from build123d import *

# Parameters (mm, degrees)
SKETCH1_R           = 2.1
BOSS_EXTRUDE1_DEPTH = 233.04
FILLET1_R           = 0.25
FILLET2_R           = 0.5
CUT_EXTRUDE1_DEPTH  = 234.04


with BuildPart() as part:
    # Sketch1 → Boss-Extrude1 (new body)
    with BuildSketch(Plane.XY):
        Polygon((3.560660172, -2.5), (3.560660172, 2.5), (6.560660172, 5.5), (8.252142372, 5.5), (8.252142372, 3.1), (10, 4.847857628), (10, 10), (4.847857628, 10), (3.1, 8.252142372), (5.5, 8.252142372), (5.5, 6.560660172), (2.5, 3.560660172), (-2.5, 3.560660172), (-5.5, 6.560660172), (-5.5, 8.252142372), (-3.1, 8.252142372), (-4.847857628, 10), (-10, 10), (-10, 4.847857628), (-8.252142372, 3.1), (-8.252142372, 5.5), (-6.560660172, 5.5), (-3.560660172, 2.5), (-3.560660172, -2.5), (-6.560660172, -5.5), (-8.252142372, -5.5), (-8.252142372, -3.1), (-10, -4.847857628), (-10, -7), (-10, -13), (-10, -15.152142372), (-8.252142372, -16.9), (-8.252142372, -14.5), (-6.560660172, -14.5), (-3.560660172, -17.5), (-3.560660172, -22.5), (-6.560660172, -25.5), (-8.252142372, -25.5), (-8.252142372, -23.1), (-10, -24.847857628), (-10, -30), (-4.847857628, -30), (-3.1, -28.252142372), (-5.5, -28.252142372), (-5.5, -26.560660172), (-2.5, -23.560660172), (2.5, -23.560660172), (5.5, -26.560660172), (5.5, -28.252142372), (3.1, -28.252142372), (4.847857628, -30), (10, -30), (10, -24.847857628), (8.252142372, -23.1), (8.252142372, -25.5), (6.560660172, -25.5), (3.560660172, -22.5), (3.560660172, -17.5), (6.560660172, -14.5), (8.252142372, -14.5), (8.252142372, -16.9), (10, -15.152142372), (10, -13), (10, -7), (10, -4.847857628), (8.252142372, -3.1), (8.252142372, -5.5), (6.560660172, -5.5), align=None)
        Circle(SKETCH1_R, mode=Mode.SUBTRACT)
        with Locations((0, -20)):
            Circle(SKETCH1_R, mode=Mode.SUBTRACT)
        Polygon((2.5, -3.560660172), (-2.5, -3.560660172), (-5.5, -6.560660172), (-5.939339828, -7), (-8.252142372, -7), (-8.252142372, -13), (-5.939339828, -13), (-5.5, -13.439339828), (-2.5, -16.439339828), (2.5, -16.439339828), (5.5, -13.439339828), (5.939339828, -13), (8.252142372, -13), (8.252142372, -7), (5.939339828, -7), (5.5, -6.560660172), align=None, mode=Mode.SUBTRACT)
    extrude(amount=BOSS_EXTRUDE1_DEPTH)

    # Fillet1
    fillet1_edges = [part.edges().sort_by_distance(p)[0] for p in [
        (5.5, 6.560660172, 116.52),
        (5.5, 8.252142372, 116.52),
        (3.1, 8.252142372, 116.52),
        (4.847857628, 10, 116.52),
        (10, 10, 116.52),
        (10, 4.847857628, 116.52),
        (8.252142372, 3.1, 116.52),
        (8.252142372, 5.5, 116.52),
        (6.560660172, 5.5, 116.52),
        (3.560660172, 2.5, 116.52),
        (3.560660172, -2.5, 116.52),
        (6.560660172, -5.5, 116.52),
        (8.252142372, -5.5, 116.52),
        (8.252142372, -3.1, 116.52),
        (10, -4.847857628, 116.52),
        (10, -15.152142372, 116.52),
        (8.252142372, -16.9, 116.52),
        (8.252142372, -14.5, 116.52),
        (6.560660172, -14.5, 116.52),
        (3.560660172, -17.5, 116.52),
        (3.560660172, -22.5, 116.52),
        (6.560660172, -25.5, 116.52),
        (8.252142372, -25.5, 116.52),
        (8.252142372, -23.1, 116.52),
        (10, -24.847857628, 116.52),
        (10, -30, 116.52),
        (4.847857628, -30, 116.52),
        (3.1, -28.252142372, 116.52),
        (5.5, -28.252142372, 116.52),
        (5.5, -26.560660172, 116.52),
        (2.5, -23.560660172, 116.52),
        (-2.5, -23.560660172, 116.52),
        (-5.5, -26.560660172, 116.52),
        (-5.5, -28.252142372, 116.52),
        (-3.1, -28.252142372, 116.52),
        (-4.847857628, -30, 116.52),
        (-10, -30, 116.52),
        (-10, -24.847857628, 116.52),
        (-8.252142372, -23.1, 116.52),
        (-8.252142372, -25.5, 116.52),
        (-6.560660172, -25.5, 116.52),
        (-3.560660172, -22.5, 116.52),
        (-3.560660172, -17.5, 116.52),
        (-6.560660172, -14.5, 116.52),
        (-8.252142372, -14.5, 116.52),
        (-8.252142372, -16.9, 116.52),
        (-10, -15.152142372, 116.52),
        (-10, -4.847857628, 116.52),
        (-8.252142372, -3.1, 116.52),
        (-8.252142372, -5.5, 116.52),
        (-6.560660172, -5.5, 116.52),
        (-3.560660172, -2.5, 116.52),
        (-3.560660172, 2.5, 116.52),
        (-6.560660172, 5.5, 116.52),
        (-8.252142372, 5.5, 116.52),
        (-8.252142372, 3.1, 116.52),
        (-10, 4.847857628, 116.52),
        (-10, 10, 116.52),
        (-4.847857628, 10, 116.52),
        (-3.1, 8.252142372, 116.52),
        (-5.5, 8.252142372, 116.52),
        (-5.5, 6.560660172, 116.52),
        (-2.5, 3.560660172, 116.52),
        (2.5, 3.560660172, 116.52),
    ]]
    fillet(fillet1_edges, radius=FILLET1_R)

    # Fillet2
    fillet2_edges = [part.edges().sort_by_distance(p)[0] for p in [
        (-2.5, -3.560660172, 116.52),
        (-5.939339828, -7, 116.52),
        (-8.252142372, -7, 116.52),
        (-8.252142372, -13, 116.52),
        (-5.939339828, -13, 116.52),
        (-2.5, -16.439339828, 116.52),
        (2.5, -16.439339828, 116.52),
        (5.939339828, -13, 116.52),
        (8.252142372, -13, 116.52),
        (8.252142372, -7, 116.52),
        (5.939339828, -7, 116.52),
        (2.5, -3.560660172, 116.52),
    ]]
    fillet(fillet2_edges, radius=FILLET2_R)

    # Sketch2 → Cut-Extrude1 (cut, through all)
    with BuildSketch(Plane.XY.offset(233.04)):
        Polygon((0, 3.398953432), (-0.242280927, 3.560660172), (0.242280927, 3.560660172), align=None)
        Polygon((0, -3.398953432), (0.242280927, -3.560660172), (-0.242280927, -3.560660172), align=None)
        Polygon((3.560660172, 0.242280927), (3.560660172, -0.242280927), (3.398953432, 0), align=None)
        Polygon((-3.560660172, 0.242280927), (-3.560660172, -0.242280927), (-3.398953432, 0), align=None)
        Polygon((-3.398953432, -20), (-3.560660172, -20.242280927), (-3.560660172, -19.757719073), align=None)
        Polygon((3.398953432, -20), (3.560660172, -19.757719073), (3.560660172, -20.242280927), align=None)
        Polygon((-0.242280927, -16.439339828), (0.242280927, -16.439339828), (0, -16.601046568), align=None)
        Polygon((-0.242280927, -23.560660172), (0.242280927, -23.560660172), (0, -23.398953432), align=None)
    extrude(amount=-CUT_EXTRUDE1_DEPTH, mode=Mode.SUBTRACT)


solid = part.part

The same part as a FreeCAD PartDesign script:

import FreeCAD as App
import Part
import Sketcher

V = App.Vector


def edges_at(feature, points):
    """Names of the edges that pass closest to the given points."""
    edges = feature.Shape.Edges
    near = lambda p: min(range(len(edges)), key=lambda i: edges[i].distToShape(Part.Vertex(*p))[0])
    return sorted({f"Edge{near(p) + 1}" for p in points})

doc = App.newDocument("Part")
body = doc.addObject("PartDesign::Body", "Body")

# Sketch on XY plane
sketch1 = doc.addObject("Sketcher::SketchObject", "Sketch")
body.addObject(sketch1)
sketch1.AttachmentSupport = (doc.XY_Plane, [""])
sketch1.MapMode = "FlatFace"
sketch1.addGeometry(Part.LineSegment(V(3.6, -2.5, 0), V(3.6, 2.5, 0)), False)
sketch1.addGeometry(Part.LineSegment(V(3.6, 2.5, 0), V(6.6, 5.5, 0)), False)
sketch1.addGeometry(Part.LineSegment(V(6.6, 5.5, 0), V(8.3, 5.5, 0)), False)
sketch1.addGeometry(Part.LineSegment(V(8.3, 5.5, 0), V(8.3, 3.1, 0)), False)
sketch1.addGeometry(Part.LineSegment(V(8.3, 3.1, 0), V(10, 4.8, 0)), False)
sketch1.addGeometry(Part.LineSegment(V(10, 4.8, 0), V(10, 10, 0)), False)
sketch1.addGeometry(Part.LineSegment(V(10, 10, 0), V(4.8, 10, 0)), False)
sketch1.addGeometry(Part.LineSegment(V(4.8, 10, 0), V(3.1, 8.3, 0)), False)
sketch1.addGeometry(Part.LineSegment(V(3.1, 8.3, 0), V(5.5, 8.3, 0)), False)
sketch1.addGeometry(Part.LineSegment(V(5.5, 8.3, 0), V(5.5, 6.6, 0)), False)
sketch1.addGeometry(Part.LineSegment(V(5.5, 6.6, 0), V(2.5, 3.6, 0)), False)
sketch1.addGeometry(Part.LineSegment(V(2.5, 3.6, 0), V(-2.5, 3.6, 0)), False)
sketch1.addGeometry(Part.LineSegment(V(-2.5, 3.6, 0), V(-5.5, 6.6, 0)), False)
sketch1.addGeometry(Part.LineSegment(V(-5.5, 6.6, 0), V(-5.5, 8.3, 0)), False)
sketch1.addGeometry(Part.LineSegment(V(-5.5, 8.3, 0), V(-3.1, 8.3, 0)), False)
sketch1.addGeometry(Part.LineSegment(V(-3.1, 8.3, 0), V(-4.8, 10, 0)), False)
sketch1.addGeometry(Part.LineSegment(V(-4.8, 10, 0), V(-10, 10, 0)), False)
sketch1.addGeometry(Part.LineSegment(V(-10, 10, 0), V(-10, 4.8, 0)), False)
sketch1.addGeometry(Part.LineSegment(V(-10, 4.8, 0), V(-8.3, 3.1, 0)), False)
sketch1.addGeometry(Part.LineSegment(V(-8.3, 3.1, 0), V(-8.3, 5.5, 0)), False)
sketch1.addGeometry(Part.LineSegment(V(-8.3, 5.5, 0), V(-6.6, 5.5, 0)), False)
sketch1.addGeometry(Part.LineSegment(V(-6.6, 5.5, 0), V(-3.6, 2.5, 0)), False)
sketch1.addGeometry(Part.LineSegment(V(-3.6, 2.5, 0), V(-3.6, -2.5, 0)), False)
sketch1.addGeometry(Part.LineSegment(V(-3.6, -2.5, 0), V(-6.6, -5.5, 0)), False)
sketch1.addGeometry(Part.LineSegment(V(-6.6, -5.5, 0), V(-8.3, -5.5, 0)), False)
sketch1.addGeometry(Part.LineSegment(V(-8.3, -5.5, 0), V(-8.3, -3.1, 0)), False)
sketch1.addGeometry(Part.LineSegment(V(-8.3, -3.1, 0), V(-10, -4.8, 0)), False)
sketch1.addGeometry(Part.LineSegment(V(-10, -4.8, 0), V(-10, -15.2, 0)), False)
sketch1.addGeometry(Part.LineSegment(V(-10, -15.2, 0), V(-8.3, -16.9, 0)), False)
sketch1.addGeometry(Part.LineSegment(V(-8.3, -16.9, 0), V(-8.3, -14.5, 0)), False)
sketch1.addGeometry(Part.LineSegment(V(-8.3, -14.5, 0), V(-6.6, -14.5, 0)), False)
sketch1.addGeometry(Part.LineSegment(V(-6.6, -14.5, 0), V(-3.6, -17.5, 0)), False)
sketch1.addGeometry(Part.LineSegment(V(-3.6, -17.5, 0), V(-3.6, -22.5, 0)), False)
sketch1.addGeometry(Part.LineSegment(V(-3.6, -22.5, 0), V(-6.6, -25.5, 0)), False)
sketch1.addGeometry(Part.LineSegment(V(-6.6, -25.5, 0), V(-8.3, -25.5, 0)), False)
sketch1.addGeometry(Part.LineSegment(V(-8.3, -25.5, 0), V(-8.3, -23.1, 0)), False)
sketch1.addGeometry(Part.LineSegment(V(-8.3, -23.1, 0), V(-10, -24.8, 0)), False)
sketch1.addGeometry(Part.LineSegment(V(-10, -24.8, 0), V(-10, -30, 0)), False)
sketch1.addGeometry(Part.LineSegment(V(-10, -30, 0), V(-4.8, -30, 0)), False)
sketch1.addGeometry(Part.LineSegment(V(-4.8, -30, 0), V(-3.1, -28.3, 0)), False)
sketch1.addGeometry(Part.LineSegment(V(-3.1, -28.3, 0), V(-5.5, -28.3, 0)), False)
sketch1.addGeometry(Part.LineSegment(V(-5.5, -28.3, 0), V(-5.5, -26.6, 0)), False)
sketch1.addGeometry(Part.LineSegment(V(-5.5, -26.6, 0), V(-2.5, -23.6, 0)), False)
sketch1.addGeometry(Part.LineSegment(V(-2.5, -23.6, 0), V(2.5, -23.6, 0)), False)
sketch1.addGeometry(Part.LineSegment(V(2.5, -23.6, 0), V(5.5, -26.6, 0)), False)
sketch1.addGeometry(Part.LineSegment(V(5.5, -26.6, 0), V(5.5, -28.3, 0)), False)
sketch1.addGeometry(Part.LineSegment(V(5.5, -28.3, 0), V(3.1, -28.3, 0)), False)
sketch1.addGeometry(Part.LineSegment(V(3.1, -28.3, 0), V(4.8, -30, 0)), False)
sketch1.addGeometry(Part.LineSegment(V(4.8, -30, 0), V(10, -30, 0)), False)
sketch1.addGeometry(Part.LineSegment(V(10, -30, 0), V(10, -24.8, 0)), False)
sketch1.addGeometry(Part.LineSegment(V(10, -24.8, 0), V(8.3, -23.1, 0)), False)
sketch1.addGeometry(Part.LineSegment(V(8.3, -23.1, 0), V(8.3, -25.5, 0)), False)
sketch1.addGeometry(Part.LineSegment(V(8.3, -25.5, 0), V(6.6, -25.5, 0)), False)
sketch1.addGeometry(Part.LineSegment(V(6.6, -25.5, 0), V(3.6, -22.5, 0)), False)
sketch1.addGeometry(Part.LineSegment(V(3.6, -22.5, 0), V(3.6, -17.5, 0)), False)
sketch1.addGeometry(Part.LineSegment(V(3.6, -17.5, 0), V(6.6, -14.5, 0)), False)
sketch1.addGeometry(Part.LineSegment(V(6.6, -14.5, 0), V(8.3, -14.5, 0)), False)
sketch1.addGeometry(Part.LineSegment(V(8.3, -14.5, 0), V(8.3, -16.9, 0)), False)
sketch1.addGeometry(Part.LineSegment(V(8.3, -16.9, 0), V(10, -15.2, 0)), False)
sketch1.addGeometry(Part.LineSegment(V(10, -15.2, 0), V(10, -4.8, 0)), False)
sketch1.addGeometry(Part.LineSegment(V(10, -4.8, 0), V(8.3, -3.1, 0)), False)
sketch1.addGeometry(Part.LineSegment(V(8.3, -3.1, 0), V(8.3, -5.5, 0)), False)
sketch1.addGeometry(Part.LineSegment(V(8.3, -5.5, 0), V(6.6, -5.5, 0)), False)
sketch1.addGeometry(Part.LineSegment(V(6.6, -5.5, 0), V(3.6, -2.5, 0)), False)
sketch1.addGeometry(Part.Circle(V(0, -20, 0), V(0, 0, 1), 2.1), False)
sketch1.addGeometry(Part.LineSegment(V(-2.5, -3.6, 0), V(2.5, -3.6, 0)), False)
sketch1.addGeometry(Part.LineSegment(V(2.5, -3.6, 0), V(5.9, -7, 0)), False)
sketch1.addGeometry(Part.LineSegment(V(5.9, -7, 0), V(8.3, -7, 0)), False)
sketch1.addGeometry(Part.LineSegment(V(8.3, -7, 0), V(8.3, -13, 0)), False)
sketch1.addGeometry(Part.LineSegment(V(8.3, -13, 0), V(5.9, -13, 0)), False)
sketch1.addGeometry(Part.LineSegment(V(5.9, -13, 0), V(2.5, -16.4, 0)), False)
sketch1.addGeometry(Part.LineSegment(V(2.5, -16.4, 0), V(-2.5, -16.4, 0)), False)
sketch1.addGeometry(Part.LineSegment(V(-2.5, -16.4, 0), V(-5.9, -13, 0)), False)
sketch1.addGeometry(Part.LineSegment(V(-5.9, -13, 0), V(-8.3, -13, 0)), False)
sketch1.addGeometry(Part.LineSegment(V(-8.3, -13, 0), V(-8.3, -7, 0)), False)
sketch1.addGeometry(Part.LineSegment(V(-8.3, -7, 0), V(-5.9, -7, 0)), False)
sketch1.addGeometry(Part.LineSegment(V(-5.9, -7, 0), V(-2.5, -3.6, 0)), False)
sketch1.addGeometry(Part.Circle(V(0, 0, 0), V(0, 0, 1), 2.1), False)
sketch1.addConstraint(Sketcher.Constraint("Coincident", 0, 2, 1, 1))
sketch1.addConstraint(Sketcher.Constraint("Coincident", 1, 2, 2, 1))
sketch1.addConstraint(Sketcher.Constraint("Coincident", 2, 2, 3, 1))
sketch1.addConstraint(Sketcher.Constraint("Coincident", 3, 2, 4, 1))
sketch1.addConstraint(Sketcher.Constraint("Coincident", 4, 2, 5, 1))
sketch1.addConstraint(Sketcher.Constraint("Coincident", 5, 2, 6, 1))
sketch1.addConstraint(Sketcher.Constraint("Coincident", 6, 2, 7, 1))
sketch1.addConstraint(Sketcher.Constraint("Coincident", 7, 2, 8, 1))
sketch1.addConstraint(Sketcher.Constraint("Coincident", 8, 2, 9, 1))
sketch1.addConstraint(Sketcher.Constraint("Coincident", 9, 2, 10, 1))
sketch1.addConstraint(Sketcher.Constraint("Coincident", 10, 2, 11, 1))
sketch1.addConstraint(Sketcher.Constraint("Coincident", 11, 2, 12, 1))
sketch1.addConstraint(Sketcher.Constraint("Coincident", 12, 2, 13, 1))
sketch1.addConstraint(Sketcher.Constraint("Coincident", 13, 2, 14, 1))
sketch1.addConstraint(Sketcher.Constraint("Coincident", 14, 2, 15, 1))
sketch1.addConstraint(Sketcher.Constraint("Coincident", 15, 2, 16, 1))
sketch1.addConstraint(Sketcher.Constraint("Coincident", 16, 2, 17, 1))
sketch1.addConstraint(Sketcher.Constraint("Coincident", 17, 2, 18, 1))
sketch1.addConstraint(Sketcher.Constraint("Coincident", 18, 2, 19, 1))
sketch1.addConstraint(Sketcher.Constraint("Coincident", 19, 2, 20, 1))
sketch1.addConstraint(Sketcher.Constraint("Coincident", 20, 2, 21, 1))
sketch1.addConstraint(Sketcher.Constraint("Coincident", 21, 2, 22, 1))
sketch1.addConstraint(Sketcher.Constraint("Coincident", 22, 2, 23, 1))
sketch1.addConstraint(Sketcher.Constraint("Coincident", 23, 2, 24, 1))
sketch1.addConstraint(Sketcher.Constraint("Coincident", 24, 2, 25, 1))
sketch1.addConstraint(Sketcher.Constraint("Coincident", 25, 2, 26, 1))
sketch1.addConstraint(Sketcher.Constraint("Coincident", 26, 2, 27, 1))
sketch1.addConstraint(Sketcher.Constraint("Coincident", 27, 2, 28, 1))
sketch1.addConstraint(Sketcher.Constraint("Coincident", 28, 2, 29, 1))
sketch1.addConstraint(Sketcher.Constraint("Coincident", 29, 2, 30, 1))
sketch1.addConstraint(Sketcher.Constraint("Coincident", 30, 2, 31, 1))
sketch1.addConstraint(Sketcher.Constraint("Coincident", 31, 2, 32, 1))
sketch1.addConstraint(Sketcher.Constraint("Coincident", 32, 2, 33, 1))
sketch1.addConstraint(Sketcher.Constraint("Coincident", 33, 2, 34, 1))
sketch1.addConstraint(Sketcher.Constraint("Coincident", 34, 2, 35, 1))
sketch1.addConstraint(Sketcher.Constraint("Coincident", 35, 2, 36, 1))
sketch1.addConstraint(Sketcher.Constraint("Coincident", 36, 2, 37, 1))
sketch1.addConstraint(Sketcher.Constraint("Coincident", 37, 2, 38, 1))
sketch1.addConstraint(Sketcher.Constraint("Coincident", 38, 2, 39, 1))
sketch1.addConstraint(Sketcher.Constraint("Coincident", 39, 2, 40, 1))
sketch1.addConstraint(Sketcher.Constraint("Coincident", 40, 2, 41, 1))
sketch1.addConstraint(Sketcher.Constraint("Coincident", 41, 2, 42, 1))
sketch1.addConstraint(Sketcher.Constraint("Coincident", 42, 2, 43, 1))
sketch1.addConstraint(Sketcher.Constraint("Coincident", 43, 2, 44, 1))
sketch1.addConstraint(Sketcher.Constraint("Coincident", 44, 2, 45, 1))
sketch1.addConstraint(Sketcher.Constraint("Coincident", 45, 2, 46, 1))
sketch1.addConstraint(Sketcher.Constraint("Coincident", 46, 2, 47, 1))
sketch1.addConstraint(Sketcher.Constraint("Coincident", 47, 2, 48, 1))
sketch1.addConstraint(Sketcher.Constraint("Coincident", 48, 2, 49, 1))
sketch1.addConstraint(Sketcher.Constraint("Coincident", 49, 2, 50, 1))
sketch1.addConstraint(Sketcher.Constraint("Coincident", 50, 2, 51, 1))
sketch1.addConstraint(Sketcher.Constraint("Coincident", 51, 2, 52, 1))
sketch1.addConstraint(Sketcher.Constraint("Coincident", 52, 2, 53, 1))
sketch1.addConstraint(Sketcher.Constraint("Coincident", 53, 2, 54, 1))
sketch1.addConstraint(Sketcher.Constraint("Coincident", 54, 2, 55, 1))
sketch1.addConstraint(Sketcher.Constraint("Coincident", 55, 2, 56, 1))
sketch1.addConstraint(Sketcher.Constraint("Coincident", 56, 2, 57, 1))
sketch1.addConstraint(Sketcher.Constraint("Coincident", 57, 2, 58, 1))
sketch1.addConstraint(Sketcher.Constraint("Coincident", 58, 2, 59, 1))
sketch1.addConstraint(Sketcher.Constraint("Coincident", 59, 2, 60, 1))
sketch1.addConstraint(Sketcher.Constraint("Coincident", 60, 2, 61, 1))
sketch1.addConstraint(Sketcher.Constraint("Coincident", 61, 2, 62, 1))
sketch1.addConstraint(Sketcher.Constraint("Coincident", 62, 2, 63, 1))
sketch1.addConstraint(Sketcher.Constraint("Coincident", 63, 2, 0, 1))
sketch1.addConstraint(Sketcher.Constraint("Coincident", 65, 2, 66, 1))
sketch1.addConstraint(Sketcher.Constraint("Coincident", 66, 2, 67, 1))
sketch1.addConstraint(Sketcher.Constraint("Coincident", 67, 2, 68, 1))
sketch1.addConstraint(Sketcher.Constraint("Coincident", 68, 2, 69, 1))
sketch1.addConstraint(Sketcher.Constraint("Coincident", 69, 2, 70, 1))
sketch1.addConstraint(Sketcher.Constraint("Coincident", 70, 2, 71, 1))
sketch1.addConstraint(Sketcher.Constraint("Coincident", 71, 2, 72, 1))
sketch1.addConstraint(Sketcher.Constraint("Coincident", 72, 2, 73, 1))
sketch1.addConstraint(Sketcher.Constraint("Coincident", 73, 2, 74, 1))
sketch1.addConstraint(Sketcher.Constraint("Coincident", 74, 2, 75, 1))
sketch1.addConstraint(Sketcher.Constraint("Coincident", 75, 2, 76, 1))
sketch1.addConstraint(Sketcher.Constraint("Coincident", 76, 2, 65, 1))
sketch1.addConstraint(Sketcher.Constraint("Vertical", 0))
sketch1.addConstraint(Sketcher.Constraint("Horizontal", 2))
sketch1.addConstraint(Sketcher.Constraint("Vertical", 3))
sketch1.addConstraint(Sketcher.Constraint("Vertical", 5))
sketch1.addConstraint(Sketcher.Constraint("Horizontal", 6))
sketch1.addConstraint(Sketcher.Constraint("Horizontal", 8))
sketch1.addConstraint(Sketcher.Constraint("Vertical", 9))
sketch1.addConstraint(Sketcher.Constraint("Horizontal", 11))
sketch1.addConstraint(Sketcher.Constraint("Vertical", 13))
sketch1.addConstraint(Sketcher.Constraint("Horizontal", 14))
sketch1.addConstraint(Sketcher.Constraint("Horizontal", 16))
sketch1.addConstraint(Sketcher.Constraint("Vertical", 17))
sketch1.addConstraint(Sketcher.Constraint("Vertical", 19))
sketch1.addConstraint(Sketcher.Constraint("Horizontal", 20))
sketch1.addConstraint(Sketcher.Constraint("Vertical", 22))
sketch1.addConstraint(Sketcher.Constraint("Horizontal", 24))
sketch1.addConstraint(Sketcher.Constraint("Vertical", 25))
sketch1.addConstraint(Sketcher.Constraint("Vertical", 27))
sketch1.addConstraint(Sketcher.Constraint("Vertical", 29))
sketch1.addConstraint(Sketcher.Constraint("Horizontal", 30))
sketch1.addConstraint(Sketcher.Constraint("Vertical", 32))
sketch1.addConstraint(Sketcher.Constraint("Horizontal", 34))
sketch1.addConstraint(Sketcher.Constraint("Vertical", 35))
sketch1.addConstraint(Sketcher.Constraint("Vertical", 37))
sketch1.addConstraint(Sketcher.Constraint("Horizontal", 38))
sketch1.addConstraint(Sketcher.Constraint("Horizontal", 40))
sketch1.addConstraint(Sketcher.Constraint("Vertical", 41))
sketch1.addConstraint(Sketcher.Constraint("Horizontal", 43))
sketch1.addConstraint(Sketcher.Constraint("Vertical", 45))
sketch1.addConstraint(Sketcher.Constraint("Horizontal", 46))
sketch1.addConstraint(Sketcher.Constraint("Horizontal", 48))
sketch1.addConstraint(Sketcher.Constraint("Vertical", 49))
sketch1.addConstraint(Sketcher.Constraint("Vertical", 51))
sketch1.addConstraint(Sketcher.Constraint("Horizontal", 52))
sketch1.addConstraint(Sketcher.Constraint("Vertical", 54))
sketch1.addConstraint(Sketcher.Constraint("Horizontal", 56))
sketch1.addConstraint(Sketcher.Constraint("Vertical", 57))
sketch1.addConstraint(Sketcher.Constraint("Vertical", 59))
sketch1.addConstraint(Sketcher.Constraint("Vertical", 61))
sketch1.addConstraint(Sketcher.Constraint("Horizontal", 62))
sketch1.addConstraint(Sketcher.Constraint("Horizontal", 65))
sketch1.addConstraint(Sketcher.Constraint("Horizontal", 67))
sketch1.addConstraint(Sketcher.Constraint("Vertical", 68))
sketch1.addConstraint(Sketcher.Constraint("Horizontal", 69))
sketch1.addConstraint(Sketcher.Constraint("Horizontal", 71))
sketch1.addConstraint(Sketcher.Constraint("Horizontal", 73))
sketch1.addConstraint(Sketcher.Constraint("Vertical", 74))
sketch1.addConstraint(Sketcher.Constraint("Horizontal", 75))
sketch1.addConstraint(Sketcher.Constraint("Coincident", 77, 3, -1, 1))
sketch1.addConstraint(Sketcher.Constraint("Equal", 64, 77))
sketch1.addConstraint(Sketcher.Constraint("Symmetric", 0, 2, 22, 2, -1, 1))
sketch1.addConstraint(Sketcher.Constraint("Symmetric", 1, 2, 23, 2, -1, 1))
sketch1.addConstraint(Sketcher.Constraint("Symmetric", 3, 2, 25, 2, -1, 1))
sketch1.addConstraint(Sketcher.Constraint("Symmetric", 4, 2, 26, 2, -1, 1))
sketch1.addConstraint(Sketcher.Constraint("Symmetric", 17, 2, 59, 2, -1, 1))
sketch1.addConstraint(Sketcher.Constraint("Symmetric", 18, 2, 60, 2, -1, 1))
sketch1.addConstraint(Sketcher.Constraint("Symmetric", 20, 2, 62, 2, -1, 1))
sketch1.addConstraint(Sketcher.Constraint("Symmetric", 11, 2, 65, 2, -1, 1))
sketch1.addConstraint(Sketcher.Constraint("Symmetric", 9, 2, 12, 2, -2))
sketch1.addConstraint(Sketcher.Constraint("Symmetric", 7, 2, 14, 2, -2))
sketch1.addConstraint(Sketcher.Constraint("Symmetric", 6, 2, 15, 2, -2))
sketch1.addConstraint(Sketcher.Constraint("Symmetric", 4, 2, 17, 2, -2))
sketch1.addConstraint(Sketcher.Constraint("Symmetric", 3, 2, 18, 2, -2))
sketch1.addConstraint(Sketcher.Constraint("Symmetric", 1, 2, 20, 2, -2))
sketch1.addConstraint(Sketcher.Constraint("Symmetric", 41, 2, 44, 2, -2))
sketch1.addConstraint(Sketcher.Constraint("Symmetric", 39, 2, 46, 2, -2))
sketch1.addConstraint(Sketcher.Constraint("Symmetric", 38, 2, 47, 2, -2))
sketch1.addConstraint(Sketcher.Constraint("Symmetric", 36, 2, 49, 2, -2))
sketch1.addConstraint(Sketcher.Constraint("Symmetric", 35, 2, 50, 2, -2))
sketch1.addConstraint(Sketcher.Constraint("Symmetric", 33, 2, 52, 2, -2))
sketch1.addConstraint(Sketcher.Constraint("Symmetric", 32, 2, 53, 2, -2))
sketch1.addConstraint(Sketcher.Constraint("Symmetric", 30, 2, 55, 2, -2))
sketch1.addConstraint(Sketcher.Constraint("Symmetric", 28, 2, 57, 2, -2))
sketch1.addConstraint(Sketcher.Constraint("Symmetric", 69, 2, 72, 2, -2))
sketch1.addConstraint(Sketcher.Constraint("Symmetric", 67, 2, 74, 2, -2))
sketch1.addConstraint(Sketcher.Constraint("PointOnObject", 64, 3, -2))
sketch1.addConstraint(Sketcher.Constraint("Parallel", 1, 4))
sketch1.addConstraint(Sketcher.Constraint("Parallel", 4, 7))
sketch1.addConstraint(Sketcher.Constraint("Parallel", 7, 10))
sketch1.addConstraint(Sketcher.Constraint("Perpendicular", 10, 12))
sketch1.addConstraint(Sketcher.Constraint("Parallel", 12, 15))
sketch1.addConstraint(Sketcher.Constraint("Parallel", 18, 21))
sketch1.addConstraint(Sketcher.Constraint("Perpendicular", 26, 28))
sketch1.addConstraint(Sketcher.Constraint("Parallel", 28, 31))
sketch1.addConstraint(Sketcher.Constraint("Perpendicular", 31, 33))
sketch1.addConstraint(Sketcher.Constraint("Parallel", 33, 36))
sketch1.addConstraint(Sketcher.Constraint("Parallel", 36, 39))
sketch1.addConstraint(Sketcher.Constraint("Parallel", 39, 42))
sketch1.addConstraint(Sketcher.Constraint("Perpendicular", 42, 44))
sketch1.addConstraint(Sketcher.Constraint("Perpendicular", 53, 55))
sketch1.addConstraint(Sketcher.Constraint("Parallel", 55, 58))
sketch1.addConstraint(Sketcher.Constraint("Parallel", 60, 63))
sketch1.addConstraint(Sketcher.Constraint("Parallel", 63, 66))
sketch1.addConstraint(Sketcher.Constraint("Perpendicular", 66, 70))
sketch1.addConstraint(Sketcher.Constraint("Perpendicular", 70, 72))
sketch1.addConstraint(Sketcher.Constraint("Perpendicular", 72, 76))
sketch1.addConstraint(Sketcher.Constraint("Vertical", 25, 2, 28, 2))
sketch1.addConstraint(Sketcher.Constraint("Vertical", 23, 2, 30, 2))
sketch1.addConstraint(Sketcher.Constraint("Vertical", 22, 2, 31, 2))
sketch1.addConstraint(Sketcher.Constraint("Vertical", 30, 2, 33, 2))
sketch1.addConstraint(Sketcher.Constraint("Vertical", 29, 2, 34, 2))
sketch1.addConstraint(Sketcher.Constraint("Vertical", 27, 2, 36, 2))
sketch1.addConstraint(Sketcher.Constraint("Vertical", 15, 2, 38, 2))
sketch1.addConstraint(Sketcher.Constraint("Vertical", 14, 2, 39, 2))
sketch1.addConstraint(Sketcher.Constraint("Vertical", 13, 2, 40, 2))
sketch1.addConstraint(Sketcher.Constraint("Vertical", 11, 2, 42, 2))
sketch1.addConstraint(Sketcher.Constraint("Vertical", 61, 2, 67, 2))
sketch1.addConstraint(Sketcher.Constraint("Vertical", 66, 2, 69, 2))
sketch1.addConstraint(Sketcher.Constraint("Vertical", 65, 2, 70, 2))
sketch1.addConstraint(Sketcher.Constraint("Vertical", 72, 2, 75, 2))
sketch1.addConstraint(Sketcher.Constraint("Equal", 71, 0))
sketch1.addConstraint(Sketcher.Constraint("Equal", 46, 3))
sketch1.addConstraint(Sketcher.Constraint("Equal", 48, 5))
sketch1.addConstraint(Sketcher.Constraint("Equal", 62, 9))
sketch1.addConstraint(Sketcher.Constraint("Equal", 25, 29))
sketch1.addConstraint(Sketcher.Constraint("Equal", 22, 32))
sketch1.addConstraint(Sketcher.Constraint("Equal", 29, 35))
sketch1.addConstraint(Sketcher.Constraint("Equal", 17, 37))
sketch1.addConstraint(Sketcher.Constraint("Equal", 13, 41))
sketch1.addConstraint(Sketcher.Constraint("Equal", 4, 7))
sketch1.addConstraint(Sketcher.Constraint("Equal", 1, 10))
sketch1.addConstraint(Sketcher.Constraint("Diameter", 64, 4.2))
sketch1.addConstraint(Sketcher.Constraint("DistanceX", 11, 2, 11, 1, 5.0))
sketch1.addConstraint(Sketcher.Constraint("DistanceY", 68, 2, 68, 1, 6.0))
sketch1.addConstraint(Sketcher.Constraint("DistanceX", 8, 1, 8, 2, 2.4))
sketch1.addConstraint(Sketcher.Constraint("DistanceY", 64, 3, -1, 1, 20.0))
sketch1.addConstraint(Sketcher.Constraint("DistanceX", -1, 1, 4, 2, 10.0))
sketch1.addConstraint(Sketcher.Constraint("DistanceY", 37, 2, -1, 1, 30.0))
sketch1.addConstraint(Sketcher.Constraint("DistanceY", 66, 2, -1, 1, 7.0))
sketch1.addConstraint(Sketcher.Constraint("DistanceY", -1, 1, 1, 2, 5.5))
sketch1.addConstraint(Sketcher.Constraint("Distance", 66, 4.863961))
sketch1.addConstraint(Sketcher.Constraint("DistanceX", 2, 1, 2, 2, 1.691482))
pad1 = doc.addObject("PartDesign::Pad", "Pad")
body.addObject(pad1)
pad1.Profile = sketch1
pad1.Length = 233.04
doc.recompute()

fillet = doc.addObject("PartDesign::Fillet", "Fillet")
body.addObject(fillet)
fillet.Base = (pad1, edges_at(pad1, [
    (5.5, 6.561, 116.52),
    (5.5, 8.252, 116.52),
    (3.1, 8.252, 116.52),
    (4.848, 10, 116.52),
    (10, 10, 116.52),
    (10, 4.848, 116.52),
    (8.252, 3.1, 116.52),
    (8.252, 5.5, 116.52),
    (6.561, 5.5, 116.52),
    (3.561, 2.5, 116.52),
    (3.561, -2.5, 116.52),
    (6.561, -5.5, 116.52),
    (8.252, -5.5, 116.52),
    (8.252, -3.1, 116.52),
    (10, -4.848, 116.52),
    (10, -15.152, 116.52),
    (8.252, -16.9, 116.52),
    (8.252, -14.5, 116.52),
    (6.561, -14.5, 116.52),
    (3.561, -17.5, 116.52),
    (3.561, -22.5, 116.52),
    (6.561, -25.5, 116.52),
    (8.252, -25.5, 116.52),
    (8.252, -23.1, 116.52),
    (10, -24.848, 116.52),
    (10, -30, 116.52),
    (4.848, -30, 116.52),
    (3.1, -28.252, 116.52),
    (5.5, -28.252, 116.52),
    (5.5, -26.561, 116.52),
    (2.5, -23.561, 116.52),
    (-2.5, -23.561, 116.52),
    (-5.5, -26.561, 116.52),
    (-5.5, -28.252, 116.52),
    (-3.1, -28.252, 116.52),
    (-4.848, -30, 116.52),
    (-10, -30, 116.52),
    (-10, -24.848, 116.52),
    (-8.252, -23.1, 116.52),
    (-8.252, -25.5, 116.52),
    (-6.561, -25.5, 116.52),
    (-3.561, -22.5, 116.52),
    (-3.561, -17.5, 116.52),
    (-6.561, -14.5, 116.52),
    (-8.252, -14.5, 116.52),
    (-8.252, -16.9, 116.52),
    (-10, -15.152, 116.52),
    (-10, -4.848, 116.52),
    (-8.252, -3.1, 116.52),
    (-8.252, -5.5, 116.52),
    (-6.561, -5.5, 116.52),
    (-3.561, -2.5, 116.52),
    (-3.561, 2.5, 116.52),
    (-6.561, 5.5, 116.52),
    (-8.252, 5.5, 116.52),
    (-8.252, 3.1, 116.52),
    (-10, 4.848, 116.52),
    (-10, 10, 116.52),
    (-4.848, 10, 116.52),
    (-3.1, 8.252, 116.52),
    (-5.5, 8.252, 116.52),
    (-5.5, 6.561, 116.52),
    (-2.5, 3.561, 116.52),
    (2.5, 3.561, 116.52),
]))
fillet.Radius = 0.25
doc.recompute()

fillet2 = doc.addObject("PartDesign::Fillet", "Fillet001")
body.addObject(fillet2)
fillet2.Base = (fillet, edges_at(fillet, [
    (-2.5, -3.561, 116.52),
    (-5.939, -7, 116.52),
    (-8.252, -7, 116.52),
    (-8.252, -13, 116.52),
    (-5.939, -13, 116.52),
    (-2.5, -16.439, 116.52),
    (2.5, -16.439, 116.52),
    (5.939, -13, 116.52),
    (8.252, -13, 116.52),
    (8.252, -7, 116.52),
    (5.939, -7, 116.52),
    (2.5, -3.561, 116.52),
]))
fillet2.Radius = 0.5

# Sketch on XY plane
sketch2 = doc.addObject("Sketcher::SketchObject", "Sketch001")
body.addObject(sketch2)
sketch2.AttachmentSupport = (doc.XY_Plane, [""])
sketch2.MapMode = "FlatFace"
sketch2.AttachmentOffset = App.Placement(V(0, 0, 233.04), App.Rotation())
sketch2.addGeometry(Part.LineSegment(V(-0.24, 3.56, 0), V(0, 3.4, 0)), False)
sketch2.addGeometry(Part.LineSegment(V(0, 3.4, 0), V(0.24, 3.56, 0)), False)
sketch2.addGeometry(Part.LineSegment(V(0.24, 3.56, 0), V(-0.24, 3.56, 0)), False)
sketch2.addGeometry(Part.LineSegment(V(0.24, -3.56, 0), V(0, -3.4, 0)), False)
sketch2.addGeometry(Part.LineSegment(V(0, -3.4, 0), V(-0.24, -3.56, 0)), False)
sketch2.addGeometry(Part.LineSegment(V(-0.24, -3.56, 0), V(0.24, -3.56, 0)), False)
sketch2.addGeometry(Part.LineSegment(V(3.56, -0.24, 0), V(3.56, 0.24, 0)), False)
sketch2.addGeometry(Part.LineSegment(V(3.56, 0.24, 0), V(3.4, 0, 0)), False)
sketch2.addGeometry(Part.LineSegment(V(3.4, 0, 0), V(3.56, -0.24, 0)), False)
sketch2.addGeometry(Part.LineSegment(V(-3.56, 0.24, 0), V(-3.56, -0.24, 0)), False)
sketch2.addGeometry(Part.LineSegment(V(-3.56, -0.24, 0), V(-3.4, 0, 0)), False)
sketch2.addGeometry(Part.LineSegment(V(-3.4, 0, 0), V(-3.56, 0.24, 0)), False)
sketch2.addGeometry(Part.LineSegment(V(-3.56, -20.24, 0), V(-3.4, -20, 0)), False)
sketch2.addGeometry(Part.LineSegment(V(-3.4, -20, 0), V(-3.56, -19.76, 0)), False)
sketch2.addGeometry(Part.LineSegment(V(-3.56, -19.76, 0), V(-3.56, -20.24, 0)), False)
sketch2.addGeometry(Part.LineSegment(V(3.56, -19.76, 0), V(3.4, -20, 0)), False)
sketch2.addGeometry(Part.LineSegment(V(3.4, -20, 0), V(3.56, -20.24, 0)), False)
sketch2.addGeometry(Part.LineSegment(V(3.56, -20.24, 0), V(3.56, -19.76, 0)), False)
sketch2.addGeometry(Part.LineSegment(V(0.24, -16.44, 0), V(-0.24, -16.44, 0)), False)
sketch2.addGeometry(Part.LineSegment(V(-0.24, -16.44, 0), V(0, -16.6, 0)), False)
sketch2.addGeometry(Part.LineSegment(V(0, -16.6, 0), V(0.24, -16.44, 0)), False)
sketch2.addGeometry(Part.LineSegment(V(-0.24, -23.56, 0), V(0.24, -23.56, 0)), False)
sketch2.addGeometry(Part.LineSegment(V(0.24, -23.56, 0), V(0, -23.4, 0)), False)
sketch2.addGeometry(Part.LineSegment(V(0, -23.4, 0), V(-0.24, -23.56, 0)), False)
sketch2.addConstraint(Sketcher.Constraint("Coincident", 0, 2, 1, 1))
sketch2.addConstraint(Sketcher.Constraint("Coincident", 1, 2, 2, 1))
sketch2.addConstraint(Sketcher.Constraint("Coincident", 2, 2, 0, 1))
sketch2.addConstraint(Sketcher.Constraint("Coincident", 3, 2, 4, 1))
sketch2.addConstraint(Sketcher.Constraint("Coincident", 4, 2, 5, 1))
sketch2.addConstraint(Sketcher.Constraint("Coincident", 5, 2, 3, 1))
sketch2.addConstraint(Sketcher.Constraint("Coincident", 6, 2, 7, 1))
sketch2.addConstraint(Sketcher.Constraint("Coincident", 7, 2, 8, 1))
sketch2.addConstraint(Sketcher.Constraint("Coincident", 8, 2, 6, 1))
sketch2.addConstraint(Sketcher.Constraint("Coincident", 9, 2, 10, 1))
sketch2.addConstraint(Sketcher.Constraint("Coincident", 10, 2, 11, 1))
sketch2.addConstraint(Sketcher.Constraint("Coincident", 11, 2, 9, 1))
sketch2.addConstraint(Sketcher.Constraint("Coincident", 12, 2, 13, 1))
sketch2.addConstraint(Sketcher.Constraint("Coincident", 13, 2, 14, 1))
sketch2.addConstraint(Sketcher.Constraint("Coincident", 14, 2, 12, 1))
sketch2.addConstraint(Sketcher.Constraint("Coincident", 15, 2, 16, 1))
sketch2.addConstraint(Sketcher.Constraint("Coincident", 16, 2, 17, 1))
sketch2.addConstraint(Sketcher.Constraint("Coincident", 17, 2, 15, 1))
sketch2.addConstraint(Sketcher.Constraint("Coincident", 18, 2, 19, 1))
sketch2.addConstraint(Sketcher.Constraint("Coincident", 19, 2, 20, 1))
sketch2.addConstraint(Sketcher.Constraint("Coincident", 20, 2, 18, 1))
sketch2.addConstraint(Sketcher.Constraint("Coincident", 21, 2, 22, 1))
sketch2.addConstraint(Sketcher.Constraint("Coincident", 22, 2, 23, 1))
sketch2.addConstraint(Sketcher.Constraint("Coincident", 23, 2, 21, 1))
sketch2.addConstraint(Sketcher.Constraint("Horizontal", 2))
sketch2.addConstraint(Sketcher.Constraint("Horizontal", 5))
sketch2.addConstraint(Sketcher.Constraint("Vertical", 6))
sketch2.addConstraint(Sketcher.Constraint("Vertical", 9))
sketch2.addConstraint(Sketcher.Constraint("Vertical", 14))
sketch2.addConstraint(Sketcher.Constraint("Vertical", 17))
sketch2.addConstraint(Sketcher.Constraint("Horizontal", 18))
sketch2.addConstraint(Sketcher.Constraint("Horizontal", 21))
sketch2.addConstraint(Sketcher.Constraint("Symmetric", 0, 2, 3, 2, -1, 1))
sketch2.addConstraint(Sketcher.Constraint("Symmetric", 1, 2, 4, 2, -1, 1))
sketch2.addConstraint(Sketcher.Constraint("Symmetric", 6, 2, 9, 2, -1, 1))
sketch2.addConstraint(Sketcher.Constraint("Symmetric", 7, 2, 10, 2, -1, 1))
sketch2.addConstraint(Sketcher.Constraint("Symmetric", 12, 2, 15, 2, -2))
sketch2.addConstraint(Sketcher.Constraint("Symmetric", 14, 2, 16, 2, -2))
sketch2.addConstraint(Sketcher.Constraint("PointOnObject", 0, 2, -2))
sketch2.addConstraint(Sketcher.Constraint("PointOnObject", 7, 2, -1))
sketch2.addConstraint(Sketcher.Constraint("PointOnObject", 19, 2, -2))
sketch2.addConstraint(Sketcher.Constraint("PointOnObject", 22, 2, -2))
sketch2.addConstraint(Sketcher.Constraint("Parallel", 0, 3))
sketch2.addConstraint(Sketcher.Constraint("Perpendicular", 3, 7))
sketch2.addConstraint(Sketcher.Constraint("Perpendicular", 4, 8))
sketch2.addConstraint(Sketcher.Constraint("Parallel", 8, 11))
sketch2.addConstraint(Sketcher.Constraint("Parallel", 10, 12))
sketch2.addConstraint(Sketcher.Constraint("Parallel", 11, 13))
sketch2.addConstraint(Sketcher.Constraint("Parallel", 12, 15))
sketch2.addConstraint(Sketcher.Constraint("Parallel", 13, 16))
sketch2.addConstraint(Sketcher.Constraint("Perpendicular", 15, 19))
sketch2.addConstraint(Sketcher.Constraint("Perpendicular", 16, 20))
sketch2.addConstraint(Sketcher.Constraint("Parallel", 19, 22))
sketch2.addConstraint(Sketcher.Constraint("Parallel", 20, 23))
sketch2.addConstraint(Sketcher.Constraint("Vertical", 10, 2, 12, 2))
sketch2.addConstraint(Sketcher.Constraint("Vertical", 11, 2, 13, 2))
sketch2.addConstraint(Sketcher.Constraint("Vertical", 4, 2, 18, 2))
sketch2.addConstraint(Sketcher.Constraint("Vertical", 20, 2, 21, 2))
sketch2.addConstraint(Sketcher.Constraint("Equal", 21, 6))
sketch2.addConstraint(Sketcher.Constraint("DistanceY", 12, 2, -1, 1, 20.0))
sketch2.addConstraint(Sketcher.Constraint("DistanceX", 2, 2, 2, 1, 0.484562))
sketch2.addConstraint(Sketcher.Constraint("Distance", 0, 0.291289))
sketch2.addConstraint(Sketcher.Constraint("DistanceY", -1, 1, 1, 2, 3.56066))
sketch2.addConstraint(Sketcher.Constraint("DistanceX", -1, 1, 6, 2, 3.56066))
sketch2.addConstraint(Sketcher.Constraint("DistanceY", 18, 2, -1, 1, 16.43934))
sketch2.addConstraint(Sketcher.Constraint("DistanceY", 21, 2, -1, 1, 23.56066))
pocket1 = doc.addObject("PartDesign::Pocket", "Pocket")
body.addObject(pocket1)
pocket1.Profile = sketch2
pocket1.Type = "ThroughAll"

doc.recompute()
